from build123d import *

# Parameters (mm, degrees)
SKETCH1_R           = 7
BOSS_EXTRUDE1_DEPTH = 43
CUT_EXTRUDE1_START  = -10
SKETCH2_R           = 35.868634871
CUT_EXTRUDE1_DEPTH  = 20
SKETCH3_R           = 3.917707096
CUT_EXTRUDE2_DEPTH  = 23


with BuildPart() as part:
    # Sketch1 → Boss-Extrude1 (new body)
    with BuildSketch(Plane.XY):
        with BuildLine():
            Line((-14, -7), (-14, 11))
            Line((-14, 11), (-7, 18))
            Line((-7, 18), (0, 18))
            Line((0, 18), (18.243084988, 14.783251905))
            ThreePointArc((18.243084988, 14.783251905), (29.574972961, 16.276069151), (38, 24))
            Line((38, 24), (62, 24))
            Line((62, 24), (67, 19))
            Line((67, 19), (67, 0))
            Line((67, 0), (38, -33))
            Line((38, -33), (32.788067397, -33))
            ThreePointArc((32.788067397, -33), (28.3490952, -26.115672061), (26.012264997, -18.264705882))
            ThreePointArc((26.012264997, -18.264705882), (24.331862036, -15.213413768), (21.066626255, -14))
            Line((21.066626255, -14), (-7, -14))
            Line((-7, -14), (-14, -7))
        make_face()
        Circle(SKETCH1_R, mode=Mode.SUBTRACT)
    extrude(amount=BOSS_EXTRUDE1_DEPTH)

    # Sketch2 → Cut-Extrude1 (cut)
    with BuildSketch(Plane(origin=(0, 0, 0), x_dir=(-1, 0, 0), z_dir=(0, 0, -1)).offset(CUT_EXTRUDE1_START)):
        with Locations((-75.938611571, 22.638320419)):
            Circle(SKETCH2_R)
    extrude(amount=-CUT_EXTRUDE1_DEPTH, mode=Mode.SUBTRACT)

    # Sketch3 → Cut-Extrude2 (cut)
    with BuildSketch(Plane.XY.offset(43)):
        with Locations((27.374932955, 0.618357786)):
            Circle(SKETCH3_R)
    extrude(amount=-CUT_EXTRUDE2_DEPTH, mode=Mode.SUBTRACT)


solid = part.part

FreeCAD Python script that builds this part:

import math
import FreeCAD as App
import Part
import Sketcher
Q = App.Units.Quantity

doc = App.newDocument("Part")
body = doc.addObject("PartDesign::Body", "Body")

sketch1 = doc.addObject("Sketcher::SketchObject", "Sketch")
body.addObject(sketch1)
sketch1.AttachmentSupport = (doc.XY_Plane, [""])
sketch1.MapMode = "FlatFace"
sketch1.addGeometry([
    Part.LineSegment(App.Vector(-14, 11, 0), App.Vector(-14, -7, 0)),
    Part.LineSegment(App.Vector(-14, -7, 0), App.Vector(-7, -14, 0)),
    Part.LineSegment(App.Vector(-7, -14, 0), App.Vector(21.066626, -14, 0)),
    Part.ArcOfCircle(Part.Circle(App.Vector(21.066626, -19, 0), App.Vector(0, 0, 1), 5), math.radians(8.456519), math.radians(90)),
    Part.ArcOfCircle(Part.Circle(App.Vector(54.69697, -14, 0), App.Vector(0, 0, 1), 29), math.radians(-171.543481), math.radians(-139.067275)),
    Part.LineSegment(App.Vector(32.788067, -33, 0), App.Vector(38, -33, 0)),
    Part.LineSegment(App.Vector(38, -33, 0), App.Vector(67, 0, 0)),
    Part.LineSegment(App.Vector(67, 0, 0), App.Vector(67, 19, 0)),
    Part.LineSegment(App.Vector(67, 19, 0), App.Vector(62, 24, 0)),
    Part.LineSegment(App.Vector(62, 24, 0), App.Vector(38, 24, 0)),
    Part.ArcOfCircle(Part.Circle(App.Vector(21.5424, 33.494599, 0), App.Vector(0, 0, 1), 19), math.radians(-100), math.radians(-29.981196)),
    Part.LineSegment(App.Vector(18.243085, 14.783252, 0), App.Vector(0, 18, 0)),
    Part.LineSegment(App.Vector(0, 18, 0), App.Vector(-7, 18, 0)),
    Part.LineSegment(App.Vector(-7, 18, 0), App.Vector(-14, 11, 0)),
    Part.Circle(App.Vector(0, 0, 0), App.Vector(0, 0, 1), 7),
], False)
sketch1.addConstraint([
    Sketcher.Constraint("Coincident", 0, 2, 1, 1),
    Sketcher.Constraint("Coincident", 1, 2, 2, 1),
    Sketcher.Constraint("Tangent", 2, 2, 3, 2),
    Sketcher.Constraint("Tangent", 3, 1, 4, 1),
    Sketcher.Constraint("Coincident", 4, 2, 5, 1),
    Sketcher.Constraint("Coincident", 5, 2, 6, 1),
    Sketcher.Constraint("Coincident", 6, 2, 7, 1),
    Sketcher.Constraint("Coincident", 7, 2, 8, 1),
    Sketcher.Constraint("Coincident", 8, 2, 9, 1),
    Sketcher.Constraint("Coincident", 9, 2, 10, 2),
    Sketcher.Constraint("Tangent", 10, 1, 11, 1),
    Sketcher.Constraint("Coincident", 11, 2, 12, 1),
    Sketcher.Constraint("Coincident", 12, 2, 13, 1),
    Sketcher.Constraint("Coincident", 13, 2, 0, 1),
    Sketcher.Constraint("Vertical", 0),
    Sketcher.Constraint("Horizontal", 2),
    Sketcher.Constraint("Horizontal", 5),
    Sketcher.Constraint("Vertical", 7),
    Sketcher.Constraint("Horizontal", 9),
    Sketcher.Constraint("Horizontal", 12),
    Sketcher.Constraint("Coincident", 14, 3, -1, 1),
    Sketcher.Constraint("PointOnObject", 6, 2, -1),
    Sketcher.Constraint("PointOnObject", 11, 2, -2),
    Sketcher.Constraint("Parallel", 1, 8),
    Sketcher.Constraint("Perpendicular", 8, 13),
    Sketcher.Constraint("Horizontal", 4, 3, 1, 2),
    Sketcher.Constraint("Vertical", 5, 2, 9, 2),
    Sketcher.Constraint("Vertical", 1, 2, 12, 2),
    Sketcher.Constraint("Equal", 1, 13),
    Sketcher.Constraint("Diameter", 14, Q("14 mm")),
    Sketcher.Constraint("Radius", 3, Q("5 mm")),
    Sketcher.Constraint("Radius", 4, Q("29 mm")),
    Sketcher.Constraint("Radius", 10, Q("19 mm")),
    Sketcher.Constraint("DistanceX", 9, 2, 9, 1, Q("24 mm")),
    Sketcher.Constraint("DistanceX", 12, 2, 12, 1, Q("7 mm")),
    Sketcher.Constraint("DistanceY", 0, 2, 0, 1, Q("18 mm")),
    Sketcher.Constraint("DistanceY", 7, 1, 7, 2, Q("19 mm")),
    Sketcher.Constraint("Angle", 11, Q("170 deg")),
    Sketcher.Constraint("DistanceY", 3, 3, -1, 1, Q("19 mm")),
    Sketcher.Constraint("DistanceX", 0, 2, -1, 1, Q("14 mm")),
    Sketcher.Constraint("DistanceY", 4, 2, -1, 1, Q("33 mm")),
    Sketcher.Constraint("DistanceX", -1, 1, 5, 2, Q("38 mm")),
    Sketcher.Constraint("DistanceX", -1, 1, 6, 2, Q("67 mm")),
    Sketcher.Constraint("DistanceX", 2, 1, 2, 2, Q("28.066626 mm")),
])
pad1 = doc.addObject("PartDesign::Pad", "Pad")
body.addObject(pad1)
pad1.Profile = sketch1
pad1.Length = 43

sketch2 = doc.addObject("Sketcher::SketchObject", "Sketch001")
body.addObject(sketch2)
sketch2.AttachmentSupport = (doc.XY_Plane, [""])
sketch2.MapMode = "FlatFace"
sketch2.AttachmentOffset = App.Placement(App.Vector(0, 0, 10), App.Rotation())
sketch2.addGeometry(Part.Circle(App.Vector(75.938612, 22.63832, 0), App.Vector(0, 0, 1), 35.868635), False)
sketch2.addConstraint([
    Sketcher.Constraint("Diameter", 0, Q("71.73727 mm")),
    Sketcher.Constraint("DistanceX", -1, 1, 0, 3, Q("75.938612 mm")),
    Sketcher.Constraint("DistanceY", -1, 1, 0, 3, Q("22.63832 mm")),
])
pocket1 = doc.addObject("PartDesign::Pocket", "Pocket")
body.addObject(pocket1)
pocket1.Profile = sketch2
pocket1.Length = 20
pocket1.Reversed = True

sketch3 = doc.addObject("Sketcher::SketchObject", "Sketch002")
body.addObject(sketch3)
sketch3.AttachmentSupport = (doc.XY_Plane, [""])
sketch3.MapMode = "FlatFace"
sketch3.AttachmentOffset = App.Placement(App.Vector(0, 0, 43), App.Rotation())
sketch3.addGeometry(Part.Circle(App.Vector(27.374933, 0.618358, 0), App.Vector(0, 0, 1), 3.917707), False)
sketch3.addConstraint([
    Sketcher.Constraint("Diameter", 0, Q("7.835414 mm")),
    Sketcher.Constraint("DistanceX", -1, 1, 0, 3, Q("27.374933 mm")),
    Sketcher.Constraint("DistanceY", -1, 1, 0, 3, Q("0.618358 mm")),
])
pocket2 = doc.addObject("PartDesign::Pocket", "Pocket001")
body.addObject(pocket2)
pocket2.Profile = sketch3
pocket2.Length = 23

doc.recompute()
